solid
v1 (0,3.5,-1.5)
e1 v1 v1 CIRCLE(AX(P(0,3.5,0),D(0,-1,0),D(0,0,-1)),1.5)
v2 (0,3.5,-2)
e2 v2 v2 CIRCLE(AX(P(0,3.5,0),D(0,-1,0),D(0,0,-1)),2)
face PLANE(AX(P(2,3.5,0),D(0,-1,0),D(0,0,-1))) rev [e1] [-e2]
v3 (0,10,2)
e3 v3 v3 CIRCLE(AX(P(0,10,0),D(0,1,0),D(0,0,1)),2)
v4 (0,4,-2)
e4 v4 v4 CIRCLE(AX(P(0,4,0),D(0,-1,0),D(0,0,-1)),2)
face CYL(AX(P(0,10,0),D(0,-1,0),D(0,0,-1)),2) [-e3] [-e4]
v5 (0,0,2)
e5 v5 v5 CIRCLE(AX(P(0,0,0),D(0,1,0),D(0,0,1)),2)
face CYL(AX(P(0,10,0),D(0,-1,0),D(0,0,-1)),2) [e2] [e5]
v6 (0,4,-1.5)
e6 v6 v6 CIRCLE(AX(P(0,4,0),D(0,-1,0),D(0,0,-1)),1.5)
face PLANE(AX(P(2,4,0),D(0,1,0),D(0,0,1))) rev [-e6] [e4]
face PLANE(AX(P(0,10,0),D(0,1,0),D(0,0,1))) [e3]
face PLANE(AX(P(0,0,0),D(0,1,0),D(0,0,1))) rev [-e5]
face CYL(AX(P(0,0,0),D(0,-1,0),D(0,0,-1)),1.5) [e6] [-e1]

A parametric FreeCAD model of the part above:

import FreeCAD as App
import Part
import Sketcher
from FreeCAD import Vector

doc = App.newDocument("Part")
params = doc.addObject("Spreadsheet::Sheet", "Params")
for row, (alias, value) in enumerate([
    ("sketch1_diameter", "4 mm"),
    ("pad1_length", "10 mm"),
    ("sketch2_width", "0.5 mm"),
    ("groove_angle", "360 deg"),
], start=1):
    params.set(f"A{row}", alias)
    params.set(f"B{row}", "=" + value)
    params.setAlias(f"B{row}", alias)

body = doc.addObject("PartDesign::Body", "Body")

# Sketch on XZ plane
sketch1 = body.newObject("Sketcher::SketchObject", "Sketch")
sketch1.AttachmentSupport = (doc.getObject("XZ_Plane"), [""])
sketch1.MapMode = "FlatFace"
sketch1.addGeometry(Part.Circle(Vector(0, 0, 0), Vector(0, 0, 1), 2), False)
sketch1.addConstraint(Sketcher.Constraint("Coincident", 0, 3, -1, 1))
sketch1.addConstraint(Sketcher.Constraint("Diameter", 0, 4.0))
sketch1.setExpression("Constraints[1]", "Params.sketch1_diameter")
pad1 = body.newObject("PartDesign::Pad", "Pad")
pad1.Profile = sketch1
pad1.setExpression("Length", "Params.pad1_length")
pad1.Reversed = True

# Sketch on XY plane
sketch2 = body.newObject("Sketcher::SketchObject", "Sketch001")
sketch2.AttachmentSupport = (doc.getObject("XY_Plane"), [""])
sketch2.MapMode = "FlatFace"
sketch2.addGeometry(Part.LineSegment(Vector(1.5, 4, 0), Vector(1.5, 3.5, 0)), False)
sketch2.addGeometry(Part.LineSegment(Vector(1.5, 3.5, 0), Vector(2, 3.5, 0)), False)
sketch2.addGeometry(Part.LineSegment(Vector(2, 3.5, 0), Vector(2, 4, 0)), False)
sketch2.addGeometry(Part.LineSegment(Vector(2, 4, 0), Vector(1.5, 4, 0)), False)
sketch2.addConstraint(Sketcher.Constraint("Coincident", 0, 2, 1, 1))
sketch2.addConstraint(Sketcher.Constraint("Coincident", 1, 2, 2, 1))
sketch2.addConstraint(Sketcher.Constraint("Coincident", 2, 2, 3, 1))
sketch2.addConstraint(Sketcher.Constraint("Coincident", 3, 2, 0, 1))
sketch2.addConstraint(Sketcher.Constraint("Vertical", 0))
sketch2.addConstraint(Sketcher.Constraint("Horizontal", 1))
sketch2.addConstraint(Sketcher.Constraint("Vertical", 2))
sketch2.addConstraint(Sketcher.Constraint("Horizontal", 3))
sketch2.addConstraint(Sketcher.Constraint("Equal", 3, 0))
sketch2.addConstraint(Sketcher.Constraint("DistanceX", 1, 1, 1, 2, 0.5))
sketch2.addConstraint(Sketcher.Constraint("DistanceX", -1, 1, 1, 2, 2.0))
sketch2.addConstraint(Sketcher.Constraint("DistanceY", -1, 1, 2, 2, 4.0))
sketch2.setExpression("Constraints[9]", "Params.sketch2_width")
groove = body.newObject("PartDesign::Groove", "Groove")
groove.Profile = sketch2
groove.ReferenceAxis = (sketch2, ["V_Axis"])
groove.setExpression("Angle", "Params.groove_angle")

doc.recompute()
